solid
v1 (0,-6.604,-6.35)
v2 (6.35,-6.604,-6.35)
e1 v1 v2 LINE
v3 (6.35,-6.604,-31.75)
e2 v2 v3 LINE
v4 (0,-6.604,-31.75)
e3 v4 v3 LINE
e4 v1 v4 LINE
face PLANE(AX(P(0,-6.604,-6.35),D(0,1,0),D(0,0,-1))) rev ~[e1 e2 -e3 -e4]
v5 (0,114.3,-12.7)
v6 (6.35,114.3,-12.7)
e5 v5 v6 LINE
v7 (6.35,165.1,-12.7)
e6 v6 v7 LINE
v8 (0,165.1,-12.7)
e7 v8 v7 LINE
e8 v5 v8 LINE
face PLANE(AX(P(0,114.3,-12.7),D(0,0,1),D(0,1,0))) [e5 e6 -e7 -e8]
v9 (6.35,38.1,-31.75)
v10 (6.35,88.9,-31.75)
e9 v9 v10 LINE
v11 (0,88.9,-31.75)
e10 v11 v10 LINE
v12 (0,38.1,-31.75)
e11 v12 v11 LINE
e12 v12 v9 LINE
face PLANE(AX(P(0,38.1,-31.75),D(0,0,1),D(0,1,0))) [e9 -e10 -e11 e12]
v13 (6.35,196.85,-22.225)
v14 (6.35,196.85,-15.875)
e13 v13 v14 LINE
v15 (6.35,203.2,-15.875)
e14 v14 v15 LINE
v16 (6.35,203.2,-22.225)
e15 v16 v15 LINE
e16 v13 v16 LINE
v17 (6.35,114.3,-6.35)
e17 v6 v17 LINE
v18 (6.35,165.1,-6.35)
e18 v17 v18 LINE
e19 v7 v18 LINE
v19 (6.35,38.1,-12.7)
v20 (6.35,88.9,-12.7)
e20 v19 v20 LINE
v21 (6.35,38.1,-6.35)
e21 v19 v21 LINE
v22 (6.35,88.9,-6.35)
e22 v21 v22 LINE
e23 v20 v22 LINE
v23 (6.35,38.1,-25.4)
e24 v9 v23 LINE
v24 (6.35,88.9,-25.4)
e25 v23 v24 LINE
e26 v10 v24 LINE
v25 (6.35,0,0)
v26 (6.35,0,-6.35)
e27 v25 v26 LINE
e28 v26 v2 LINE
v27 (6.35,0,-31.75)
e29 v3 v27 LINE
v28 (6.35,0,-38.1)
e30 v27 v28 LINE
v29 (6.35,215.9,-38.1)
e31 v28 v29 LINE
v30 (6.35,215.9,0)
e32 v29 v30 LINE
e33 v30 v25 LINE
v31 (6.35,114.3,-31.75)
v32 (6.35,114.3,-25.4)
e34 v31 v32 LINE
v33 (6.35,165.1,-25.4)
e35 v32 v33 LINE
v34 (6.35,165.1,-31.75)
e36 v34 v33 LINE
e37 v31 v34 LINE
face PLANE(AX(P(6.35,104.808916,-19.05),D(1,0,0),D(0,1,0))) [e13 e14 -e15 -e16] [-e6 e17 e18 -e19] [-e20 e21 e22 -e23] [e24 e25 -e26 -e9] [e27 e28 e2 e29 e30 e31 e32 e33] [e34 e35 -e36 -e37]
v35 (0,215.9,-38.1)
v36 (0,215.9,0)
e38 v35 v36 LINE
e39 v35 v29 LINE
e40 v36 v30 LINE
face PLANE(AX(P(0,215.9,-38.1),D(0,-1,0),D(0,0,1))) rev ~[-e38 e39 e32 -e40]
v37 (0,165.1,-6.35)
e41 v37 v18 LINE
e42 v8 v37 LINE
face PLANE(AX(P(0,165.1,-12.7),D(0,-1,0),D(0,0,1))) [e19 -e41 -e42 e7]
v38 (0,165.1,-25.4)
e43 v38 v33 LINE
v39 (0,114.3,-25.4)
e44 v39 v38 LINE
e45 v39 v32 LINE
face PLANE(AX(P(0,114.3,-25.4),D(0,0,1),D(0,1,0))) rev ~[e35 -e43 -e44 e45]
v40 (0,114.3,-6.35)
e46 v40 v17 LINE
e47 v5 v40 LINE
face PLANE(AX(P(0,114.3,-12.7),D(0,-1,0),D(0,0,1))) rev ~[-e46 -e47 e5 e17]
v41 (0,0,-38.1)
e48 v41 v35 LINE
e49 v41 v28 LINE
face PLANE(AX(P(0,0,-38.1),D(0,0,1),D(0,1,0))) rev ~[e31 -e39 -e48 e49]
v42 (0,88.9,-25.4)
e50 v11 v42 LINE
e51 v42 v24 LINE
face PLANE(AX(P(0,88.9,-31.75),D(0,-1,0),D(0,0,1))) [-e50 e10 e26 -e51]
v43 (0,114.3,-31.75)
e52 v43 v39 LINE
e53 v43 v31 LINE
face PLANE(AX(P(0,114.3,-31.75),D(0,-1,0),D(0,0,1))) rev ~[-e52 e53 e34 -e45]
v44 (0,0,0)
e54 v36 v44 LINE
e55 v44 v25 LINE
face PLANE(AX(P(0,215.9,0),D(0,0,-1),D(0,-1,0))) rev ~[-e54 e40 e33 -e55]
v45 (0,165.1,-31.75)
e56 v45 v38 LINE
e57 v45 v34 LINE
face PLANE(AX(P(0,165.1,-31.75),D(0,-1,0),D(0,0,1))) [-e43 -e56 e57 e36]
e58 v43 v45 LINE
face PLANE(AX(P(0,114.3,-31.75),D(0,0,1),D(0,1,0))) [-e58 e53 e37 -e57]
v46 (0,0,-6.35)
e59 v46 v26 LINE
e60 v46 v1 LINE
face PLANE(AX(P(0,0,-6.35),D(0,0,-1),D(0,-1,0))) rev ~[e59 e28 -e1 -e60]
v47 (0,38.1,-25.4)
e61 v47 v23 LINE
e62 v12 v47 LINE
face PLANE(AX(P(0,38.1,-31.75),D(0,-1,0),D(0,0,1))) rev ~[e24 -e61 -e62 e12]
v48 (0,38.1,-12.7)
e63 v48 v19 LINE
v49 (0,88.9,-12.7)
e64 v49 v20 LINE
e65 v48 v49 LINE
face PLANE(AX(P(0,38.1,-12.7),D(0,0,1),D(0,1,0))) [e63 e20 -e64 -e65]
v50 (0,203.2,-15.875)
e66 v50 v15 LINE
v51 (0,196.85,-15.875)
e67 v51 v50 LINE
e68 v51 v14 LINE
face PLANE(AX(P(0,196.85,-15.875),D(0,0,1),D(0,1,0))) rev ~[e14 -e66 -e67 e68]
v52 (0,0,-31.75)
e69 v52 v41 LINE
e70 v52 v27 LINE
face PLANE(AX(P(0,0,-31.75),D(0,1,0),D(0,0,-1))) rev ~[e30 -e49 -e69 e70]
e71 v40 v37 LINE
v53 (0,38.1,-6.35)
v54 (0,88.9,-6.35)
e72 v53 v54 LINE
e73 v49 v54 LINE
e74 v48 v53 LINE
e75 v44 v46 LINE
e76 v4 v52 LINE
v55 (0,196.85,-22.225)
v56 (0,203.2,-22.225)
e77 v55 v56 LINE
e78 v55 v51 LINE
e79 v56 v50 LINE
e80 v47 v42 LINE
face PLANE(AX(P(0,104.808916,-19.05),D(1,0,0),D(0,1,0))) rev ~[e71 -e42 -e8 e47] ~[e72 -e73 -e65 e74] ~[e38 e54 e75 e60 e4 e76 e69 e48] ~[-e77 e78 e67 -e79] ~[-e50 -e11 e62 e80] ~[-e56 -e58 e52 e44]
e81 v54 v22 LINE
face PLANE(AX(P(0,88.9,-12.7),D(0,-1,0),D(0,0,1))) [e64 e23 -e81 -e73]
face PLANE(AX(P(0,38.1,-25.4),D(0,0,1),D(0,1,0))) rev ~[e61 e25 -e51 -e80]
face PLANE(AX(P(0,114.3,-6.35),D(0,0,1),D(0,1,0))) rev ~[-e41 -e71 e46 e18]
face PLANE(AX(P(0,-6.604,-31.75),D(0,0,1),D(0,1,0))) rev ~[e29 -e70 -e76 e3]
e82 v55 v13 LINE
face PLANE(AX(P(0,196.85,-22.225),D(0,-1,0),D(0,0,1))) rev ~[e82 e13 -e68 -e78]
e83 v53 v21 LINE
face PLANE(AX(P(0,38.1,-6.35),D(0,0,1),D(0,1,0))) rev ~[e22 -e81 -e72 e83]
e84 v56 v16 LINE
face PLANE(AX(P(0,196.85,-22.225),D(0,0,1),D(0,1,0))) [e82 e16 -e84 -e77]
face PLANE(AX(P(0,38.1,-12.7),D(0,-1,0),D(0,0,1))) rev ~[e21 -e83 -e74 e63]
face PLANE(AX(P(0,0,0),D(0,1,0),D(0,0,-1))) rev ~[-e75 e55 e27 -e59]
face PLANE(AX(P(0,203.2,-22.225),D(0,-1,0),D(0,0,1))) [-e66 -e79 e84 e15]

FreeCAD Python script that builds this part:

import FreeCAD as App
import Part
import Sketcher
from FreeCAD import Vector
Q = App.Units.Quantity


def add_polygon(sketch, points):
    """Adds a closed chain of lines whose ends are joined by coincident constraints."""
    first, n = sketch.GeometryCount, len(points)
    for a, b in zip(points, points[1:] + points[:1]):
        sketch.addGeometry(Part.LineSegment(App.Vector(*a, 0), App.Vector(*b, 0)), False)
    for i in range(n):
        sketch.addConstraint(Sketcher.Constraint("Coincident", first + i, 2, first + (i + 1) % n, 1))

doc = App.newDocument("Part")
params = doc.addObject("Spreadsheet::Sheet", "Params")
for row, (alias, value) in enumerate([
    ("sketch1_width", "2 in"),
    ("sketch1_height", "1 in"),
    ("sketch1_width2", "8.5 in"),
    ("sketch1_height2", "1.5 in"),
    ("sketch1_width3", "0.26 in"),
    ("pad1_length", "0.25 in"),
], start=1):
    params.set(f"A{row}", alias)
    params.set(f"B{row}", "=" + value)
    params.setAlias(f"B{row}", alias)

body = doc.addObject("PartDesign::Body", "Body")

# Sketch on YZ plane
sketch1 = body.newObject("Sketcher::SketchObject", "Sketch")
sketch1.AttachmentSupport = (doc.getObject("YZ_Plane"), [""])
sketch1.MapMode = "FlatFace"
add_polygon(sketch1, [(216, 0), (0, 0), (0, -6), (-7, -6), (-7, -32), (0, -32), (0, -38), (216, -38)])  # lines 0-7
add_polygon(sketch1, [(89, -32), (38, -32), (38, -25), (89, -25)])  # lines 8-11
add_polygon(sketch1, [(165, -32), (114, -32), (114, -25), (165, -25)])  # lines 12-15
add_polygon(sketch1, [(203, -22), (197, -22), (197, -16), (203, -16)])  # lines 16-19
add_polygon(sketch1, [(89, -13), (38, -13), (38, -6), (89, -6)])  # lines 20-23
add_polygon(sketch1, [(165, -13), (114, -13), (114, -6), (165, -6)])  # lines 24-27
sketch1.addConstraint(Sketcher.Constraint("Horizontal", 0))
sketch1.addConstraint(Sketcher.Constraint("Vertical", 1))
sketch1.addConstraint(Sketcher.Constraint("Horizontal", 2))
sketch1.addConstraint(Sketcher.Constraint("Vertical", 3))
sketch1.addConstraint(Sketcher.Constraint("Horizontal", 4))
sketch1.addConstraint(Sketcher.Constraint("Vertical", 5))
sketch1.addConstraint(Sketcher.Constraint("Horizontal", 6))
sketch1.addConstraint(Sketcher.Constraint("Vertical", 7))
sketch1.addConstraint(Sketcher.Constraint("Horizontal", 8))
sketch1.addConstraint(Sketcher.Constraint("Vertical", 9))
sketch1.addConstraint(Sketcher.Constraint("Horizontal", 10))
sketch1.addConstraint(Sketcher.Constraint("Vertical", 11))
sketch1.addConstraint(Sketcher.Constraint("Horizontal", 12))
sketch1.addConstraint(Sketcher.Constraint("Vertical", 13))
sketch1.addConstraint(Sketcher.Constraint("Horizontal", 14))
sketch1.addConstraint(Sketcher.Constraint("Vertical", 15))
sketch1.addConstraint(Sketcher.Constraint("Horizontal", 16))
sketch1.addConstraint(Sketcher.Constraint("Vertical", 17))
sketch1.addConstraint(Sketcher.Constraint("Horizontal", 18))
sketch1.addConstraint(Sketcher.Constraint("Vertical", 19))
sketch1.addConstraint(Sketcher.Constraint("Horizontal", 20))
sketch1.addConstraint(Sketcher.Constraint("Vertical", 21))
sketch1.addConstraint(Sketcher.Constraint("Horizontal", 22))
sketch1.addConstraint(Sketcher.Constraint("Vertical", 23))
sketch1.addConstraint(Sketcher.Constraint("Horizontal", 24))
sketch1.addConstraint(Sketcher.Constraint("Vertical", 25))
sketch1.addConstraint(Sketcher.Constraint("Horizontal", 26))
sketch1.addConstraint(Sketcher.Constraint("Vertical", 27))
sketch1.addConstraint(Sketcher.Constraint("Coincident", 0, 2, -1, 1))
sketch1.addConstraint(Sketcher.Constraint("PointOnObject", 4, 2, -2))
sketch1.addConstraint(Sketcher.Constraint("Horizontal", 4, 2, 8, 2))
sketch1.addConstraint(Sketcher.Constraint("Horizontal", 11, 2, 12, 2))
sketch1.addConstraint(Sketcher.Constraint("Horizontal", 10, 2, 13, 2))
sketch1.addConstraint(Sketcher.Constraint("Horizontal", 2, 2, 21, 2))
sketch1.addConstraint(Sketcher.Constraint("Horizontal", 23, 2, 24, 2))
sketch1.addConstraint(Sketcher.Constraint("Horizontal", 22, 2, 25, 2))
sketch1.addConstraint(Sketcher.Constraint("Vertical", 9, 2, 20, 2))
sketch1.addConstraint(Sketcher.Constraint("Vertical", 11, 2, 22, 2))
sketch1.addConstraint(Sketcher.Constraint("Vertical", 13, 2, 24, 2))
sketch1.addConstraint(Sketcher.Constraint("Vertical", 15, 2, 26, 2))
sketch1.addConstraint(Sketcher.Constraint("Equal", 10, 12))
sketch1.addConstraint(Sketcher.Constraint("Equal", 18, 1))
sketch1.addConstraint(Sketcher.Constraint("Equal", 1, 5))
sketch1.addConstraint(Sketcher.Constraint("Equal", 5, 9))
sketch1.addConstraint(Sketcher.Constraint("Equal", 15, 17))
sketch1.addConstraint(Sketcher.Constraint("Equal", 19, 21))
sketch1.addConstraint(Sketcher.Constraint("DistanceX", 8, 2, 8, 1, Q("2 in")))
sketch1.addConstraint(Sketcher.Constraint("DistanceY", 3, 2, 3, 1, Q("1 in")))
sketch1.addConstraint(Sketcher.Constraint("DistanceX", 0, 2, 0, 1, Q("8.5 in")))
sketch1.addConstraint(Sketcher.Constraint("DistanceY", 7, 1, 7, 2, Q("1.5 in")))
sketch1.addConstraint(Sketcher.Constraint("DistanceX", -1, 1, 18, 2, Q("8 in")))
sketch1.addConstraint(Sketcher.Constraint("DistanceX", 11, 2, 12, 2, Q("1 in")))
sketch1.addConstraint(Sketcher.Constraint("DistanceX", 12, 2, 6, 2, Q("4 in")))
sketch1.addConstraint(Sketcher.Constraint("DistanceX", 2, 2, 2, 1, Q("0.26 in")))
sketch1.addConstraint(Sketcher.Constraint("DistanceY", 16, 2, -1, 1, Q("0.875 in")))
sketch1.setExpression("Constraints[74]", "Params.sketch1_width")
sketch1.setExpression("Constraints[75]", "Params.sketch1_height")
sketch1.setExpression("Constraints[76]", "Params.sketch1_width2")
sketch1.setExpression("Constraints[77]", "Params.sketch1_height2")
sketch1.setExpression("Constraints[81]", "Params.sketch1_width3")
pad1 = body.newObject("PartDesign::Pad", "Pad")
pad1.Profile = sketch1
pad1.setExpression("Length", "Params.pad1_length")

doc.recompute()
